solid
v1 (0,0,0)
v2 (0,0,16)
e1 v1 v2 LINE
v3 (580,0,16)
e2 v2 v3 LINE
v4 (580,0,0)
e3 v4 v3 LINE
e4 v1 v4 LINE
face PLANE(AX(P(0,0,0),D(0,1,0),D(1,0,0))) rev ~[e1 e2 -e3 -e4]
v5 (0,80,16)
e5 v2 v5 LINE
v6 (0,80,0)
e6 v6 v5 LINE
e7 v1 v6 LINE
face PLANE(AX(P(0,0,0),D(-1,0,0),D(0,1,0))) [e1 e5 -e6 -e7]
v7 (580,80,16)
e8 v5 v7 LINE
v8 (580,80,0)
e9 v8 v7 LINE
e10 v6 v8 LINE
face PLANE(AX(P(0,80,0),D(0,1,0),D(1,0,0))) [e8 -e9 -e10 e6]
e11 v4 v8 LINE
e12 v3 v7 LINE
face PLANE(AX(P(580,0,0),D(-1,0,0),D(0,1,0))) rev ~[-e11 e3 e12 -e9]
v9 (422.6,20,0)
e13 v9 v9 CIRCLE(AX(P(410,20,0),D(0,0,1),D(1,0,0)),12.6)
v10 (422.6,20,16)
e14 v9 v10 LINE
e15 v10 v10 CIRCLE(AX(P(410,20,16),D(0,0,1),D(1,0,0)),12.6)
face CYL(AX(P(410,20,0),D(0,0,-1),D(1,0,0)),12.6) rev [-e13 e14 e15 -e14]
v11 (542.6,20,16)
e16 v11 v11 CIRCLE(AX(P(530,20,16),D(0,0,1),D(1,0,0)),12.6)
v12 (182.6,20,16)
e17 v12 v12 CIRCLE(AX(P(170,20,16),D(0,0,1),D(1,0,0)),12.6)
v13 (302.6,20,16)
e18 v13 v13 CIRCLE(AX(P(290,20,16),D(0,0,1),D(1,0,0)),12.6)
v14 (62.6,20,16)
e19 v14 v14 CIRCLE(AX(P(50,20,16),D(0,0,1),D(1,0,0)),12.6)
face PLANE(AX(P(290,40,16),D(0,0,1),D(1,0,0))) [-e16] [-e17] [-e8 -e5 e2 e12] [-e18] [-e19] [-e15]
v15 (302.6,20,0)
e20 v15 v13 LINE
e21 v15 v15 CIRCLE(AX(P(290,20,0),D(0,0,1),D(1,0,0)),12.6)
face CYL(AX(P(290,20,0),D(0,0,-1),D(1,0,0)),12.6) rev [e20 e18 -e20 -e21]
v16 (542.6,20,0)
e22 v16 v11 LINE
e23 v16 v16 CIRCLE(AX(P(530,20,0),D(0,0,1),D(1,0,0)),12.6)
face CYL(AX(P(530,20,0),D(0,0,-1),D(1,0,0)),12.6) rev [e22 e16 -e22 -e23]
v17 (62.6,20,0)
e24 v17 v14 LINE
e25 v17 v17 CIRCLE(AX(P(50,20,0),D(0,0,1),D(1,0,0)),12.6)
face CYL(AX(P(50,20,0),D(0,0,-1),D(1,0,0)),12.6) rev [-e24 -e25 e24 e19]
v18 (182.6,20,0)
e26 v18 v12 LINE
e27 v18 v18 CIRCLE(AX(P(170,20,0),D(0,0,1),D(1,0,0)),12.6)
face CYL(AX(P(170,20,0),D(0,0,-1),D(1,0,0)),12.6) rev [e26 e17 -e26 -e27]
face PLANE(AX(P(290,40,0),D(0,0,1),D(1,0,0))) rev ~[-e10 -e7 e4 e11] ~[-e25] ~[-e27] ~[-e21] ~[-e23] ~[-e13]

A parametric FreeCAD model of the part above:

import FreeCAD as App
import Part
import Sketcher
Q = App.Units.Quantity

doc = App.newDocument("Part")
params = doc.addObject("Spreadsheet::Sheet", "Params")
for row, (alias, value) in enumerate([
    ("sketch1_diameter", "25.2 mm"),
    ("sketch1_width", "580 mm"),
    ("sketch1_height", "80 mm"),
    ("pad1_length", "16 mm"),
], start=1):
    params.set(f"A{row}", alias)
    params.set(f"B{row}", "=" + value)
    params.setAlias(f"B{row}", alias)

body = doc.addObject("PartDesign::Body", "Body")

# Sketch on XY plane
sketch1 = doc.addObject("Sketcher::SketchObject", "Sketch")
body.addObject(sketch1)
sketch1.AttachmentSupport = (doc.XY_Plane, [""])
sketch1.MapMode = "FlatFace"
sketch1.addGeometry([
    Part.LineSegment(App.Vector(0, 80, 0), App.Vector(0, 0, 0)),  # 0
    Part.LineSegment(App.Vector(0, 0, 0), App.Vector(580, 0, 0)),  # 1
    Part.LineSegment(App.Vector(580, 0, 0), App.Vector(580, 80, 0)),  # 2
    Part.LineSegment(App.Vector(580, 80, 0), App.Vector(0, 80, 0)),  # 3
    Part.Circle(App.Vector(50, 20, 0), App.Vector(0, 0, 1), 12.6),  # 4
    Part.Circle(App.Vector(170, 20, 0), App.Vector(0, 0, 1), 12.6),  # 5
    Part.Circle(App.Vector(290, 20, 0), App.Vector(0, 0, 1), 12.6),  # 6
    Part.Circle(App.Vector(410, 20, 0), App.Vector(0, 0, 1), 12.6),  # 7
    Part.Circle(App.Vector(530, 20, 0), App.Vector(0, 0, 1), 12.6),  # 8
], False)
sketch1.addConstraint([
    Sketcher.Constraint("Coincident", 0, 2, 1, 1),
    Sketcher.Constraint("Coincident", 1, 2, 2, 1),
    Sketcher.Constraint("Coincident", 2, 2, 3, 1),
    Sketcher.Constraint("Coincident", 3, 2, 0, 1),
    Sketcher.Constraint("Vertical", 0),
    Sketcher.Constraint("Horizontal", 1),
    Sketcher.Constraint("Vertical", 2),
    Sketcher.Constraint("Horizontal", 3),
    Sketcher.Constraint("Coincident", 0, 2, -1, 1),
    Sketcher.Constraint("Equal", 4, 5),
    Sketcher.Constraint("Equal", 5, 6),
    Sketcher.Constraint("Equal", 6, 7),
    Sketcher.Constraint("Equal", 7, 8),
    Sketcher.Constraint("Horizontal", 4, 3, 5, 3),
    Sketcher.Constraint("Horizontal", 5, 3, 6, 3),
    Sketcher.Constraint("Horizontal", 6, 3, 7, 3),
    Sketcher.Constraint("Horizontal", 7, 3, 8, 3),
    Sketcher.Constraint("Diameter", 4, Q("25.2 mm")),
    Sketcher.Constraint("DistanceX", 1, 1, 1, 2, Q("580 mm")),
    Sketcher.Constraint("DistanceY", 0, 2, 0, 1, Q("80 mm")),
    Sketcher.Constraint("DistanceX", -1, 1, 4, 3, Q("50 mm")),
    Sketcher.Constraint("DistanceY", -1, 1, 4, 3, Q("20 mm")),
    Sketcher.Constraint("DistanceX", -1, 1, 5, 3, Q("170 mm")),
    Sketcher.Constraint("DistanceX", -1, 1, 6, 3, Q("290 mm")),
    Sketcher.Constraint("DistanceX", -1, 1, 7, 3, Q("410 mm")),
    Sketcher.Constraint("DistanceX", -1, 1, 8, 3, Q("530 mm")),
])
sketch1.setExpression("Constraints[17]", "Params.sketch1_diameter")
sketch1.setExpression("Constraints[18]", "Params.sketch1_width")
sketch1.setExpression("Constraints[19]", "Params.sketch1_height")
pad1 = doc.addObject("PartDesign::Pad", "Pad")
body.addObject(pad1)
pad1.Profile = sketch1
pad1.setExpression("Length", "Params.pad1_length")

doc.recompute()
